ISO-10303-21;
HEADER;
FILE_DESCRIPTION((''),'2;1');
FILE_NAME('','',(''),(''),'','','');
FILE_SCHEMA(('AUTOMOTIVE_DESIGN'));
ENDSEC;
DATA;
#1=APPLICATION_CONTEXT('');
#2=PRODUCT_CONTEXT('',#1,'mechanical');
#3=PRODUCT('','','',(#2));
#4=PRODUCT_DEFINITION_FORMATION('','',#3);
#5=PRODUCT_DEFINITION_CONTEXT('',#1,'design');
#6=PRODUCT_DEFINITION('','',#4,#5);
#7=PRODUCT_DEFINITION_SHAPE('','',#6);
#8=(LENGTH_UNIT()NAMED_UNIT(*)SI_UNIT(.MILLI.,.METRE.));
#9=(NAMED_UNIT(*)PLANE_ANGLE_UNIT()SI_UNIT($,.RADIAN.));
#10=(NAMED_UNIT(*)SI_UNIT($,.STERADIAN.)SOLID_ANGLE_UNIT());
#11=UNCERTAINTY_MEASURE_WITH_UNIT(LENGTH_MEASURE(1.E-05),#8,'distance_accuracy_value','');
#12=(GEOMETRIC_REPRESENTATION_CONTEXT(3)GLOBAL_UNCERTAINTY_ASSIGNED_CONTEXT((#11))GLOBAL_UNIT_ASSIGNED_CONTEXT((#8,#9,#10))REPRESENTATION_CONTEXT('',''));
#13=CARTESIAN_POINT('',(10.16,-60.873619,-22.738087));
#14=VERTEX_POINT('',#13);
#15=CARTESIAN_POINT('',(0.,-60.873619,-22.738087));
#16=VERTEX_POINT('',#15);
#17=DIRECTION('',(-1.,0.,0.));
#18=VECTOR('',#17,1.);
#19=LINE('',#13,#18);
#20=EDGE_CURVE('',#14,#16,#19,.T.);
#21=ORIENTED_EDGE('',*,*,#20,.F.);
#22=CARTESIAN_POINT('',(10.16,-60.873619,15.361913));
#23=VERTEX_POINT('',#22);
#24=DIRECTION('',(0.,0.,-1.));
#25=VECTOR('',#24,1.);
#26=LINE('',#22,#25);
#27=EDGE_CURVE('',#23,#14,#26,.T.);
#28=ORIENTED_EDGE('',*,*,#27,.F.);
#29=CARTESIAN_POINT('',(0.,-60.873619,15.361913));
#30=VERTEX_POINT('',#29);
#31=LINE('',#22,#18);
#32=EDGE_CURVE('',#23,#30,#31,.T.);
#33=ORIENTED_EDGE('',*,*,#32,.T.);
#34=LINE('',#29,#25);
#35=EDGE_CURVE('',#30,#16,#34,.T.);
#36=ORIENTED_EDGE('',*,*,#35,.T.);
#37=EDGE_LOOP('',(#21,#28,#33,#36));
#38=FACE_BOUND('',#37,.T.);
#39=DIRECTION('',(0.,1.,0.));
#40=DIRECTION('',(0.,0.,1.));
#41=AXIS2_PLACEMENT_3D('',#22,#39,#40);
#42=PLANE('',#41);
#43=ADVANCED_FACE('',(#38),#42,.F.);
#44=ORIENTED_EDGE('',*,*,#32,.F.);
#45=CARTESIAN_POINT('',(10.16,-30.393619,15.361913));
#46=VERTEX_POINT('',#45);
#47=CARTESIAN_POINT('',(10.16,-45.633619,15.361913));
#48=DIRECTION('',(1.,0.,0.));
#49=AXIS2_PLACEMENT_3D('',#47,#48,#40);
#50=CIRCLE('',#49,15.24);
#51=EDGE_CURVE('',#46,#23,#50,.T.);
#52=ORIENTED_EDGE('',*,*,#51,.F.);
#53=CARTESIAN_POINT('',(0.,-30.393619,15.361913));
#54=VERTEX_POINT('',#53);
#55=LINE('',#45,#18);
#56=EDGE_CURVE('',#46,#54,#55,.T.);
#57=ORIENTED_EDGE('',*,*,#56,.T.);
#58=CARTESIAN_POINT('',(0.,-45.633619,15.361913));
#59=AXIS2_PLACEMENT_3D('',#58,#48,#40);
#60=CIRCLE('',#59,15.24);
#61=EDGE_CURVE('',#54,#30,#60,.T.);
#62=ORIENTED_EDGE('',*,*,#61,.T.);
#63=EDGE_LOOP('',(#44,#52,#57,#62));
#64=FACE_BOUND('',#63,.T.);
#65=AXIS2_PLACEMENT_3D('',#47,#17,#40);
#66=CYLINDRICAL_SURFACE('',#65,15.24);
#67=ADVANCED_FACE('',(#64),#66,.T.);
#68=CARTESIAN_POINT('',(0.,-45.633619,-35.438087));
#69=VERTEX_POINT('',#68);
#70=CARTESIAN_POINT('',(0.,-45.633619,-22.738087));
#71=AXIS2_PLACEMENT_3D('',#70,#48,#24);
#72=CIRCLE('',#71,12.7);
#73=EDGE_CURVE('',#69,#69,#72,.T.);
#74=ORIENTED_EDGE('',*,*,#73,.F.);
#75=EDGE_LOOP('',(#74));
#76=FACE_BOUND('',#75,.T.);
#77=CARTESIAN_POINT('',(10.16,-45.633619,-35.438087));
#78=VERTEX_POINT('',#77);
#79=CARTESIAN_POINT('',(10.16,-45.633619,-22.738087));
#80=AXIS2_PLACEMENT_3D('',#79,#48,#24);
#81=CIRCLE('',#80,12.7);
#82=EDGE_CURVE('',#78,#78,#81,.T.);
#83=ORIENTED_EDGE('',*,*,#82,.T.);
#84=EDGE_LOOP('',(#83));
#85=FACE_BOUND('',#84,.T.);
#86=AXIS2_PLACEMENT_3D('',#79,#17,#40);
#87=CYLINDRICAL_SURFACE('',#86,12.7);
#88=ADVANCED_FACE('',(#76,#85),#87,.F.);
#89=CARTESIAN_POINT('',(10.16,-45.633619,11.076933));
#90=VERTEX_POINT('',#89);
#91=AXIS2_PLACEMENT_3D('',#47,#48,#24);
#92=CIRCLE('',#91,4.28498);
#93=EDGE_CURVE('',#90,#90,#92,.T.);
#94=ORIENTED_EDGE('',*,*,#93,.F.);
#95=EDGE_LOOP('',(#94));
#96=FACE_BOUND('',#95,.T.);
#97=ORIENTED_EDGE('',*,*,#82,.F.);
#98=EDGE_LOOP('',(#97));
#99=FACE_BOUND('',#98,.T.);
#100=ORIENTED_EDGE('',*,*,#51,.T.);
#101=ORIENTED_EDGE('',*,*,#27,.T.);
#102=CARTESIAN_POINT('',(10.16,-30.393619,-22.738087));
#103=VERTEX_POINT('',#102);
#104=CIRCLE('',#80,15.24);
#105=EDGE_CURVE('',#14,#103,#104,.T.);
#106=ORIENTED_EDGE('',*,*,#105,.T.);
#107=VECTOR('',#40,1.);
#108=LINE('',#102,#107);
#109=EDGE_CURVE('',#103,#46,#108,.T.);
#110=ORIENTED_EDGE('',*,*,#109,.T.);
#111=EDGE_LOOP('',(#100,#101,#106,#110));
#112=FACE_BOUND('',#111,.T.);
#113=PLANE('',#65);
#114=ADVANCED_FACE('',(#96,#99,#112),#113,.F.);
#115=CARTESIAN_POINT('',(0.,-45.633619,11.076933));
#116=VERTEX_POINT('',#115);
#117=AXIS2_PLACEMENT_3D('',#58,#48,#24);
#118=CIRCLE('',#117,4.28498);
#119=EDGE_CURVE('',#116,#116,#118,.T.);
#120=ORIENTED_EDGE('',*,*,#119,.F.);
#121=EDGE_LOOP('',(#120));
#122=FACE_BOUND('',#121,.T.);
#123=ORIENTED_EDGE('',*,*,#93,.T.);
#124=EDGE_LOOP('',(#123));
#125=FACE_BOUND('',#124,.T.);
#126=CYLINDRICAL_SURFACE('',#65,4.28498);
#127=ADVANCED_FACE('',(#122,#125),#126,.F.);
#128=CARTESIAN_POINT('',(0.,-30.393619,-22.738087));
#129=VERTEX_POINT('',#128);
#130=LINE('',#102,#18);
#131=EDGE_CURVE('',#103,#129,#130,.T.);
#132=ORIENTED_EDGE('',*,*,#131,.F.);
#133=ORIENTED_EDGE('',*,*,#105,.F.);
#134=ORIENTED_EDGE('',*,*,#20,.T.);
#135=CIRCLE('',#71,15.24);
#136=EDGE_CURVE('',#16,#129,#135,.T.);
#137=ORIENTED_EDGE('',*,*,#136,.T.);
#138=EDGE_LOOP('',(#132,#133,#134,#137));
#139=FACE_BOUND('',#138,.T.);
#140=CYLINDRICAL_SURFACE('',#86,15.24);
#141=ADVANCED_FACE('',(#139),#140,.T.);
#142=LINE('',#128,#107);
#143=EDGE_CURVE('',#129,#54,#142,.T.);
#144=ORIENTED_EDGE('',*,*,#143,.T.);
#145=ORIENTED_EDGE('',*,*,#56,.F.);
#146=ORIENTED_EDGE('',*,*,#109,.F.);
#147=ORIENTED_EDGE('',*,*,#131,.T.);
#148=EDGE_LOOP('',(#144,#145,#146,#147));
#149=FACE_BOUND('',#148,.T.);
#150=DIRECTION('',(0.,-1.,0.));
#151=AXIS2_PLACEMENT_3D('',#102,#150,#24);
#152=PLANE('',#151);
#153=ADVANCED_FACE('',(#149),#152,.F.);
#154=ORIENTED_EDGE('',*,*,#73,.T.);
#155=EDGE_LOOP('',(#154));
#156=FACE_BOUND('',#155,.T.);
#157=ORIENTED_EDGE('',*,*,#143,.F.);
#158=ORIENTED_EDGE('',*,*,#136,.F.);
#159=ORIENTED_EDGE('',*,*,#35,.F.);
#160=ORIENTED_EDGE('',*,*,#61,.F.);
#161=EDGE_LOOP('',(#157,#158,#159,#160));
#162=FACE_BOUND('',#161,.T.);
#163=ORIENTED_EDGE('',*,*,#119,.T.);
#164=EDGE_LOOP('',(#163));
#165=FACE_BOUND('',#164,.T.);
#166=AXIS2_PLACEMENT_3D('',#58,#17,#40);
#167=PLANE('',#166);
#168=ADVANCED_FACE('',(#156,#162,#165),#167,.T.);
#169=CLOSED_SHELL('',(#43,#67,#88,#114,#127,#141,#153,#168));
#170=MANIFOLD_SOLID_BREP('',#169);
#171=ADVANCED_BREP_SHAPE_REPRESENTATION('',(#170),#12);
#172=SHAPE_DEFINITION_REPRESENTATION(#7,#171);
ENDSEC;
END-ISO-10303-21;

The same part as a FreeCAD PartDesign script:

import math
import FreeCAD as App
import Part
import Sketcher
from FreeCAD import Vector
Q = App.Units.Quantity

doc = App.newDocument("Part")
params = doc.addObject("Spreadsheet::Sheet", "Params")
for row, (alias, value) in enumerate([
    ("sketch1_diameter", "1 in"),
    ("sketch1_radius", "0.6 in"),
    ("sketch1_height", "1.5 in"),
    ("pad1_length", "0.4 in"),
], start=1):
    params.set(f"A{row}", alias)
    params.set(f"B{row}", "=" + value)
    params.setAlias(f"B{row}", alias)

body = doc.addObject("PartDesign::Body", "Body")

sketch1 = doc.addObject("Sketcher::SketchObject", "Sketch")
body.addObject(sketch1)
sketch1.AttachmentSupport = (doc.YZ_Plane, [""])
sketch1.MapMode = "FlatFace"
sketch1.addGeometry([
    Part.LineSegment(Vector(-60.9, 15.4, 0), Vector(-60.9, -22.7, 0)),
    Part.ArcOfCircle(Part.Circle(Vector(-45.6, -22.7, 0), Vector(0, 0, 1), 15.2), math.radians(180), math.radians(360)),
    Part.LineSegment(Vector(-30.4, -22.7, 0), Vector(-30.4, 15.4, 0)),
    Part.ArcOfCircle(Part.Circle(Vector(-45.6, 15.4, 0), Vector(0, 0, 1), 15.2), math.radians(0), math.radians(180)),
    Part.Circle(Vector(-45.6, -22.7, 0), Vector(0, 0, 1), 12.7),
    Part.Circle(Vector(-45.6, 15.4, 0), Vector(0, 0, 1), 4.3),
], False)
sketch1.addConstraint([
    Sketcher.Constraint("Tangent", 0, 2, 1, 1),
    Sketcher.Constraint("Tangent", 1, 2, 2, 1),
    Sketcher.Constraint("Tangent", 2, 2, 3, 1),
    Sketcher.Constraint("Tangent", 3, 2, 0, 1),
    Sketcher.Constraint("Vertical", 0),
    Sketcher.Constraint("Vertical", 2),
    Sketcher.Constraint("Coincident", 4, 3, 1, 3),
    Sketcher.Constraint("Coincident", 5, 3, 3, 3),
    Sketcher.Constraint("Diameter", 4, Q("1 in")),
    Sketcher.Constraint("Radius", 1, Q("0.6 in")),
    Sketcher.Constraint("DistanceY", 0, 2, 0, 1, Q("1.5 in")),
    Sketcher.Constraint("Diameter", 5, Q("0.3374 in")),
    Sketcher.Constraint("DistanceX", 1, 3, -1, 1, 45.633619),
    Sketcher.Constraint("DistanceY", 1, 3, -1, 1, 22.738087),
])
sketch1.setExpression("Constraints[8]", "Params.sketch1_diameter")
sketch1.setExpression("Constraints[9]", "Params.sketch1_radius")
sketch1.setExpression("Constraints[10]", "Params.sketch1_height")
pad1 = doc.addObject("PartDesign::Pad", "Pad")
body.addObject(pad1)
pad1.Profile = sketch1
pad1.setExpression("Length", "Params.pad1_length")

doc.recompute()
